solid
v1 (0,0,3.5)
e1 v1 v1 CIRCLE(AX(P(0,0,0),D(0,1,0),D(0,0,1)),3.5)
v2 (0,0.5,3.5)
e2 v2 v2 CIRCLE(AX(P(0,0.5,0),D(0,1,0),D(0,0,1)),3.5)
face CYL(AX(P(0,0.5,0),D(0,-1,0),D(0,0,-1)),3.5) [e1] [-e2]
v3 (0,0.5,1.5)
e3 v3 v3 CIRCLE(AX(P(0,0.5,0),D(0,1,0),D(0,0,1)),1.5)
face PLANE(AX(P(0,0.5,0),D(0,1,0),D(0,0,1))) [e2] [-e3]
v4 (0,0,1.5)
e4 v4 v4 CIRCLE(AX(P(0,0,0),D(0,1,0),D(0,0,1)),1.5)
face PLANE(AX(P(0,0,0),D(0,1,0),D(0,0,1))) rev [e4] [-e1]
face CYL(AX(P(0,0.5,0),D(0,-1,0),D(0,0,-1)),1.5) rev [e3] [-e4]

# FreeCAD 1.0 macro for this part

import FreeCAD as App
import Part
import Sketcher

V = App.Vector

doc = App.newDocument("Part")
body = doc.addObject("PartDesign::Body", "Body")

sketch1 = body.newObject("Sketcher::SketchObject", "Sketch")
sketch1.AttachmentSupport = (doc.getObject("XZ_Plane"), [""])
sketch1.MapMode = "FlatFace"
sketch1.addGeometry([
    Part.Circle(V(0, 0, 0), V(0, 0, 1), 3.5),
    Part.Circle(V(0, 0, 0), V(0, 0, 1), 1.5),
], False)
sketch1.addConstraint([
    Sketcher.Constraint("Coincident", 0, 3, -1, 1),
    Sketcher.Constraint("Coincident", 1, 3, -1, 1),
    Sketcher.Constraint("Diameter", 0, 7.0),
    Sketcher.Constraint("Diameter", 1, 3.0),
])
pad1 = body.newObject("PartDesign::Pad", "Pad")
pad1.Profile = sketch1
pad1.Length = 0.5
pad1.Reversed = True

doc.recompute()
